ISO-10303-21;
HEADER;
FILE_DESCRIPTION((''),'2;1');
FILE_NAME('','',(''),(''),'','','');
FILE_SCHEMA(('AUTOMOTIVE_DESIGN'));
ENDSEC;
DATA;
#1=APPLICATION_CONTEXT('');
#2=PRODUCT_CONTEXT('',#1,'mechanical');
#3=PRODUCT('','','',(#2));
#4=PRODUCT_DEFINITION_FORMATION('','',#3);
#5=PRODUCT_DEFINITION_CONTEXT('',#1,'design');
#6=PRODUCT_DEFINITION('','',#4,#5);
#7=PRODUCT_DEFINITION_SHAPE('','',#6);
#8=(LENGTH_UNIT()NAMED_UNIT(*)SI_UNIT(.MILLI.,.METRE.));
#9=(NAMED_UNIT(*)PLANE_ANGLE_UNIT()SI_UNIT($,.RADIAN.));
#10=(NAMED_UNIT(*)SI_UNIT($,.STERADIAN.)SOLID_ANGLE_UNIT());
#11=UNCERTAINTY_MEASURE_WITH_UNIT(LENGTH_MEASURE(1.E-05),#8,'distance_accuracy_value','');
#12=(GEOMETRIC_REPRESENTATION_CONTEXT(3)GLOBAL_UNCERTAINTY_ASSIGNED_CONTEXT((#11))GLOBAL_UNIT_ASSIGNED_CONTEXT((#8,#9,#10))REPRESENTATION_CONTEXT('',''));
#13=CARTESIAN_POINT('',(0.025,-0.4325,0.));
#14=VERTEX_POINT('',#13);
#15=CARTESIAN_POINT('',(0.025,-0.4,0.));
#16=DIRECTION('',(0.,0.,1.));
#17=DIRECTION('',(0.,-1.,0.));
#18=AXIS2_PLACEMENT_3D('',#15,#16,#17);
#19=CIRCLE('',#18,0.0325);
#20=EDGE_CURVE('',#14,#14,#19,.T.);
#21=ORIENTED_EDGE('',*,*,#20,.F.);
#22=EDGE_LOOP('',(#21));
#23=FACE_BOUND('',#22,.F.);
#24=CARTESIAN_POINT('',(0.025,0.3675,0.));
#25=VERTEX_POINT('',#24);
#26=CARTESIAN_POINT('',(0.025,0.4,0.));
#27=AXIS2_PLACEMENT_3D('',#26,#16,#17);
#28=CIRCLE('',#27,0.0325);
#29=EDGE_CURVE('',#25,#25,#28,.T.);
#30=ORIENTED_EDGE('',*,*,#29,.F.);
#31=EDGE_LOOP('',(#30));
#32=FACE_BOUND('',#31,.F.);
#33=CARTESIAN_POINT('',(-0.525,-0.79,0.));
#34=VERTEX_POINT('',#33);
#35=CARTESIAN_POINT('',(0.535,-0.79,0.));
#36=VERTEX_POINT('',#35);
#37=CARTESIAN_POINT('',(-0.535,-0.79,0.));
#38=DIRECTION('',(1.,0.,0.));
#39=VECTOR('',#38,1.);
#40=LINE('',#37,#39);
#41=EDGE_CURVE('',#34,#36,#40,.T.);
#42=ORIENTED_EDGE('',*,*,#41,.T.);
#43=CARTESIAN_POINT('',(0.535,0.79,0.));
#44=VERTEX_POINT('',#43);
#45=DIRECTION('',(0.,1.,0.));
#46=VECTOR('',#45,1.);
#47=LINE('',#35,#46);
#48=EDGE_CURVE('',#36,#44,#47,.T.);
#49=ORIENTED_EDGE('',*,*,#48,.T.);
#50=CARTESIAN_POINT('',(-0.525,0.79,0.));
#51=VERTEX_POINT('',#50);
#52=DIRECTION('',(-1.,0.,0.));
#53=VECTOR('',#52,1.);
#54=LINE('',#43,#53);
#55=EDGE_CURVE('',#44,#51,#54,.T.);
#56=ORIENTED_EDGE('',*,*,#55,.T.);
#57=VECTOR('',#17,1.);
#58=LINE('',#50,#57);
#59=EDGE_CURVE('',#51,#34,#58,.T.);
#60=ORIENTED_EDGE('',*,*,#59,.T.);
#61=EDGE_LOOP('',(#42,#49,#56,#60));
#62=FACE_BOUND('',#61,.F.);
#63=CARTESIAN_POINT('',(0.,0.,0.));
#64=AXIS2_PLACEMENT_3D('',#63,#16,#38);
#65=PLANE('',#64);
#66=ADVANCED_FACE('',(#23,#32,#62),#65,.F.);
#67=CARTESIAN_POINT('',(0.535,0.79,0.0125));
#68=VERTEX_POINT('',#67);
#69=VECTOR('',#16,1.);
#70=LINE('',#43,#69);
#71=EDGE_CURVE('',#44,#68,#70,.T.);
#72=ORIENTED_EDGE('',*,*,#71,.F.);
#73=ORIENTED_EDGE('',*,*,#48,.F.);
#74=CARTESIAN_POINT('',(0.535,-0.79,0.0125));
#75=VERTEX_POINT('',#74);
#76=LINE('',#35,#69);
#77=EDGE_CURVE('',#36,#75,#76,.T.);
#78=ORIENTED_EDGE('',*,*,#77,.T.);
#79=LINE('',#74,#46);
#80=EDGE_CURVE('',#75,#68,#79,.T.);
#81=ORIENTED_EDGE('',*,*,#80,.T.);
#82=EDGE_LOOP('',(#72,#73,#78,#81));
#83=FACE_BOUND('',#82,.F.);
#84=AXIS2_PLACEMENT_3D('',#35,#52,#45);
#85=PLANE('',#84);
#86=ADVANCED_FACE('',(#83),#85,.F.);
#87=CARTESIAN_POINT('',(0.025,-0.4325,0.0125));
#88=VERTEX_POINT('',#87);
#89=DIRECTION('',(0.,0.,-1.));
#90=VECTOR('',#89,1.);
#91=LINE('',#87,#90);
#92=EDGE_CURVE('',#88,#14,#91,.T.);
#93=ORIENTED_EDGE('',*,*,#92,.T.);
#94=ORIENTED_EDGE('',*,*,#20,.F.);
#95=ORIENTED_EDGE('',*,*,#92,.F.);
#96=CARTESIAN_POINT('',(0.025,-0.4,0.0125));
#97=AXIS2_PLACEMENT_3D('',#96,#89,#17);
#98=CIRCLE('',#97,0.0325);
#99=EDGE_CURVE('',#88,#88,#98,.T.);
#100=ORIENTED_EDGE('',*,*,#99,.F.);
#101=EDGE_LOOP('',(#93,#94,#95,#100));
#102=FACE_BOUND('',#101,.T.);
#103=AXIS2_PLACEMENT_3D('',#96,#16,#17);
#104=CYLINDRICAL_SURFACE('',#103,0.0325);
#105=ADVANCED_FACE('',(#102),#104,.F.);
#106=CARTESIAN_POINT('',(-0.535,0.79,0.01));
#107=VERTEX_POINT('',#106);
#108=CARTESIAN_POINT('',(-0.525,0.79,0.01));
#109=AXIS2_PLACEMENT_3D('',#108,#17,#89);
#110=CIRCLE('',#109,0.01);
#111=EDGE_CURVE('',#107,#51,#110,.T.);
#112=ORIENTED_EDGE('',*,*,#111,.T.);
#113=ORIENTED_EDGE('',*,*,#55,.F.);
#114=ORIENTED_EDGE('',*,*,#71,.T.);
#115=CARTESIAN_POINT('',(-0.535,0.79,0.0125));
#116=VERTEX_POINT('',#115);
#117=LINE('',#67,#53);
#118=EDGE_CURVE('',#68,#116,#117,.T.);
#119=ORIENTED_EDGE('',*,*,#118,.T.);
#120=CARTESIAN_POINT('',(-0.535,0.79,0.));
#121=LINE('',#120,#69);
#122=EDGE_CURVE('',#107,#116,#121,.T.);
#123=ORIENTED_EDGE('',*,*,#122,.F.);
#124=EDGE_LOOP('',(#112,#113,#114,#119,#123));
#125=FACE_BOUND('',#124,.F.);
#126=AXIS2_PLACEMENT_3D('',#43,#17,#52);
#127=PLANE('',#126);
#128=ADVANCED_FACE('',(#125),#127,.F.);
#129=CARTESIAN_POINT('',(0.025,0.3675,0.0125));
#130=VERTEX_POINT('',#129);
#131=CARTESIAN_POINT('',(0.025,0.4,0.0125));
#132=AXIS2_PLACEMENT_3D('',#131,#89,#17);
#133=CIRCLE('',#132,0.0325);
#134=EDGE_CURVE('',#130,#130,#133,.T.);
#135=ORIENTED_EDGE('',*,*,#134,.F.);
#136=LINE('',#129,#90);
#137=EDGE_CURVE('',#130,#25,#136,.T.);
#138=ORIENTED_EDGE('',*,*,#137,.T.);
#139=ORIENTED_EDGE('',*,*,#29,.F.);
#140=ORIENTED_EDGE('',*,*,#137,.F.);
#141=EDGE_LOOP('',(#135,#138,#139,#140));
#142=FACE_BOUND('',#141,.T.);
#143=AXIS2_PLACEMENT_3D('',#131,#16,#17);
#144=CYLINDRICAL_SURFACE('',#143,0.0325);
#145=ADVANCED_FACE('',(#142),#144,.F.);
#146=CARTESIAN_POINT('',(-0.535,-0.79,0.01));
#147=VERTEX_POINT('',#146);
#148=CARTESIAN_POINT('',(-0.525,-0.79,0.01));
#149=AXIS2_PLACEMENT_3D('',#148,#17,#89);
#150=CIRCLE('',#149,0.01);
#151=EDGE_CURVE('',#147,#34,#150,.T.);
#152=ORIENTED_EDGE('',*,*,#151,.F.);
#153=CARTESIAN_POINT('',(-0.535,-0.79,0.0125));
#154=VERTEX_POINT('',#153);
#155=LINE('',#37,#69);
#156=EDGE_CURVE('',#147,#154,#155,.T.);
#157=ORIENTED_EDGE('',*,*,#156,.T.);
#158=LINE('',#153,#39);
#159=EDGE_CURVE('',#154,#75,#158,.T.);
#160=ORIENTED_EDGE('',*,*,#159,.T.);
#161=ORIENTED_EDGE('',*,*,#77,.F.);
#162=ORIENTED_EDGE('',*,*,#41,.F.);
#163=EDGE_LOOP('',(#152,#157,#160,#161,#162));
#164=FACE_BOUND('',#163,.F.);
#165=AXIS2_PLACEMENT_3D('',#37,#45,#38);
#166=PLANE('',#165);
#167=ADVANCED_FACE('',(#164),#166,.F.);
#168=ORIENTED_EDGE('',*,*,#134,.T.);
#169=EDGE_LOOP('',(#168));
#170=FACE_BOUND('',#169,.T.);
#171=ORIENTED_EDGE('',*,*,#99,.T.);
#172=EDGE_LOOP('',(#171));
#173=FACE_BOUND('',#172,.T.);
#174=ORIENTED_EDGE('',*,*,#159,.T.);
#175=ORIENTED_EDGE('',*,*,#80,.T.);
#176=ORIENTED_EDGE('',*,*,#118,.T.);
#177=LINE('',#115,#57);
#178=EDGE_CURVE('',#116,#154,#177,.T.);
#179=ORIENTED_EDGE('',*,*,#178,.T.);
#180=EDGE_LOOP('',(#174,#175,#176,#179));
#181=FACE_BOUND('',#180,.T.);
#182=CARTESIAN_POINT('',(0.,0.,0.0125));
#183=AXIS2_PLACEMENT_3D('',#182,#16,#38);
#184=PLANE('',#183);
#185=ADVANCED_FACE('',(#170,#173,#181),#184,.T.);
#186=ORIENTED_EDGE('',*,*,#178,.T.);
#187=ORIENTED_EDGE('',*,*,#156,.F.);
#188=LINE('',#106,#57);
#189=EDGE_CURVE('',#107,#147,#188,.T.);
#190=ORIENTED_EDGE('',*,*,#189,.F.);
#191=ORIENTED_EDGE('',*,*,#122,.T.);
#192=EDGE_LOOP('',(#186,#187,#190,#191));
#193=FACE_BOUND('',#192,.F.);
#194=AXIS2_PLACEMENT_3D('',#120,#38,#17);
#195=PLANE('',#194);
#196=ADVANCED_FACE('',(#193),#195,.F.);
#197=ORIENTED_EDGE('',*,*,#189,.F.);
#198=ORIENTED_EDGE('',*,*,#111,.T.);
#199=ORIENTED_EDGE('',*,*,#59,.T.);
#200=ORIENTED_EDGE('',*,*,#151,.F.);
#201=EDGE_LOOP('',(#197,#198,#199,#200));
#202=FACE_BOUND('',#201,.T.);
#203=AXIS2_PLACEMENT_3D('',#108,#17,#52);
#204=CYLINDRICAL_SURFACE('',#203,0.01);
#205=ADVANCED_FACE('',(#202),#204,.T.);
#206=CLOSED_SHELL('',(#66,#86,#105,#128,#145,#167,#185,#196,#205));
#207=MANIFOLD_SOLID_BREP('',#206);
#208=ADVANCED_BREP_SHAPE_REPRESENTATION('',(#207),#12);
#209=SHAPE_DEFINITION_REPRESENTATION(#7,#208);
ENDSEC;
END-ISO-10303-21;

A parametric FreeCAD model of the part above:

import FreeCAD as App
import Part
import Sketcher

V = App.Vector
Q = App.Units.Quantity


def edges_at(feature, points):
    """Names of the edges that pass closest to the given points."""
    edges = feature.Shape.Edges
    near = lambda p: min(range(len(edges)), key=lambda i: edges[i].distToShape(Part.Vertex(*p))[0])
    return sorted({f"Edge{near(p) + 1}" for p in points})


def add_polygon(sketch, points):
    """Adds a closed chain of lines whose ends are joined by coincident constraints."""
    first, n = sketch.GeometryCount, len(points)
    for a, b in zip(points, points[1:] + points[:1]):
        sketch.addGeometry(Part.LineSegment(App.Vector(*a, 0), App.Vector(*b, 0)), False)
    for i in range(n):
        sketch.addConstraint(Sketcher.Constraint("Coincident", first + i, 2, first + (i + 1) % n, 1))

doc = App.newDocument("Part")
body = doc.addObject("PartDesign::Body", "Body")

sketch1 = body.newObject("Sketcher::SketchObject", "Sketch")
sketch1.AttachmentSupport = (doc.getObject("XY_Plane"), [""])
sketch1.MapMode = "FlatFace"
add_polygon(sketch1, [(-0.5, 0.8), (-0.5, -0.8), (0.5, -0.8), (0.5, 0.8)])
sketch1.addConstraint([
    Sketcher.Constraint("Vertical", 0),
    Sketcher.Constraint("Horizontal", 1),
    Sketcher.Constraint("Vertical", 2),
    Sketcher.Constraint("Horizontal", 3),
    Sketcher.Constraint("Symmetric", 0, 2, 2, 2, -1, 1),
    Sketcher.Constraint("DistanceX", 0, 2, -1, 1, Q("0.535 mm")),
    Sketcher.Constraint("DistanceY", 0, 2, 0, 1, Q("1.58 mm")),
])
pad1 = body.newObject("PartDesign::Pad", "Pad")
pad1.Profile = sketch1
pad1.Length = 0.0125
doc.recompute()

fillet = body.newObject("PartDesign::Fillet", "Fillet")
fillet.Base = (pad1, edges_at(pad1, [(-0.535, 0, 0)]))
fillet.Radius = 0.01

sketch2 = body.newObject("Sketcher::SketchObject", "Sketch001")
sketch2.AttachmentSupport = (doc.getObject("XY_Plane"), [""])
sketch2.MapMode = "FlatFace"
sketch2.AttachmentOffset = App.Placement(V(0, 0, 0.0125), App.Rotation())
sketch2.addGeometry(Part.Circle(V(0.025, -0.4, 0), V(0, 0, 1), 0.033), False)
sketch2.addConstraint([
    Sketcher.Constraint("Diameter", 0, Q("0.065 mm")),
    Sketcher.Constraint("DistanceY", 0, 3, -1, 1, Q("0.4 mm")),
    Sketcher.Constraint("DistanceX", -1, 1, 0, 3, Q("0.025 mm")),
])
doc.recompute()
hole = body.newObject("PartDesign::Hole", "Hole")
hole.Profile = sketch2
hole.ThreadType = "None"
hole.Diameter = 0.065
hole.DepthType = "ThroughAll"

sketch3 = body.newObject("Sketcher::SketchObject", "Sketch002")
sketch3.AttachmentSupport = (doc.getObject("XY_Plane"), [""])
sketch3.MapMode = "FlatFace"
sketch3.AttachmentOffset = App.Placement(V(0, 0, 0.0125), App.Rotation())
sketch3.addGeometry(Part.Circle(V(0.025, 0.4, 0), V(0, 0, 1), 0.033), False)
sketch3.addConstraint([
    Sketcher.Constraint("Diameter", 0, Q("0.065 mm")),
    Sketcher.Constraint("DistanceY", -1, 1, 0, 3, Q("0.4 mm")),
    Sketcher.Constraint("DistanceX", -1, 1, 0, 3, Q("0.025 mm")),
])
doc.recompute()
hole2 = body.newObject("PartDesign::Hole", "Hole001")
hole2.Profile = sketch3
hole2.ThreadType = "None"
hole2.Diameter = 0.065
hole2.DepthType = "ThroughAll"

doc.recompute()
